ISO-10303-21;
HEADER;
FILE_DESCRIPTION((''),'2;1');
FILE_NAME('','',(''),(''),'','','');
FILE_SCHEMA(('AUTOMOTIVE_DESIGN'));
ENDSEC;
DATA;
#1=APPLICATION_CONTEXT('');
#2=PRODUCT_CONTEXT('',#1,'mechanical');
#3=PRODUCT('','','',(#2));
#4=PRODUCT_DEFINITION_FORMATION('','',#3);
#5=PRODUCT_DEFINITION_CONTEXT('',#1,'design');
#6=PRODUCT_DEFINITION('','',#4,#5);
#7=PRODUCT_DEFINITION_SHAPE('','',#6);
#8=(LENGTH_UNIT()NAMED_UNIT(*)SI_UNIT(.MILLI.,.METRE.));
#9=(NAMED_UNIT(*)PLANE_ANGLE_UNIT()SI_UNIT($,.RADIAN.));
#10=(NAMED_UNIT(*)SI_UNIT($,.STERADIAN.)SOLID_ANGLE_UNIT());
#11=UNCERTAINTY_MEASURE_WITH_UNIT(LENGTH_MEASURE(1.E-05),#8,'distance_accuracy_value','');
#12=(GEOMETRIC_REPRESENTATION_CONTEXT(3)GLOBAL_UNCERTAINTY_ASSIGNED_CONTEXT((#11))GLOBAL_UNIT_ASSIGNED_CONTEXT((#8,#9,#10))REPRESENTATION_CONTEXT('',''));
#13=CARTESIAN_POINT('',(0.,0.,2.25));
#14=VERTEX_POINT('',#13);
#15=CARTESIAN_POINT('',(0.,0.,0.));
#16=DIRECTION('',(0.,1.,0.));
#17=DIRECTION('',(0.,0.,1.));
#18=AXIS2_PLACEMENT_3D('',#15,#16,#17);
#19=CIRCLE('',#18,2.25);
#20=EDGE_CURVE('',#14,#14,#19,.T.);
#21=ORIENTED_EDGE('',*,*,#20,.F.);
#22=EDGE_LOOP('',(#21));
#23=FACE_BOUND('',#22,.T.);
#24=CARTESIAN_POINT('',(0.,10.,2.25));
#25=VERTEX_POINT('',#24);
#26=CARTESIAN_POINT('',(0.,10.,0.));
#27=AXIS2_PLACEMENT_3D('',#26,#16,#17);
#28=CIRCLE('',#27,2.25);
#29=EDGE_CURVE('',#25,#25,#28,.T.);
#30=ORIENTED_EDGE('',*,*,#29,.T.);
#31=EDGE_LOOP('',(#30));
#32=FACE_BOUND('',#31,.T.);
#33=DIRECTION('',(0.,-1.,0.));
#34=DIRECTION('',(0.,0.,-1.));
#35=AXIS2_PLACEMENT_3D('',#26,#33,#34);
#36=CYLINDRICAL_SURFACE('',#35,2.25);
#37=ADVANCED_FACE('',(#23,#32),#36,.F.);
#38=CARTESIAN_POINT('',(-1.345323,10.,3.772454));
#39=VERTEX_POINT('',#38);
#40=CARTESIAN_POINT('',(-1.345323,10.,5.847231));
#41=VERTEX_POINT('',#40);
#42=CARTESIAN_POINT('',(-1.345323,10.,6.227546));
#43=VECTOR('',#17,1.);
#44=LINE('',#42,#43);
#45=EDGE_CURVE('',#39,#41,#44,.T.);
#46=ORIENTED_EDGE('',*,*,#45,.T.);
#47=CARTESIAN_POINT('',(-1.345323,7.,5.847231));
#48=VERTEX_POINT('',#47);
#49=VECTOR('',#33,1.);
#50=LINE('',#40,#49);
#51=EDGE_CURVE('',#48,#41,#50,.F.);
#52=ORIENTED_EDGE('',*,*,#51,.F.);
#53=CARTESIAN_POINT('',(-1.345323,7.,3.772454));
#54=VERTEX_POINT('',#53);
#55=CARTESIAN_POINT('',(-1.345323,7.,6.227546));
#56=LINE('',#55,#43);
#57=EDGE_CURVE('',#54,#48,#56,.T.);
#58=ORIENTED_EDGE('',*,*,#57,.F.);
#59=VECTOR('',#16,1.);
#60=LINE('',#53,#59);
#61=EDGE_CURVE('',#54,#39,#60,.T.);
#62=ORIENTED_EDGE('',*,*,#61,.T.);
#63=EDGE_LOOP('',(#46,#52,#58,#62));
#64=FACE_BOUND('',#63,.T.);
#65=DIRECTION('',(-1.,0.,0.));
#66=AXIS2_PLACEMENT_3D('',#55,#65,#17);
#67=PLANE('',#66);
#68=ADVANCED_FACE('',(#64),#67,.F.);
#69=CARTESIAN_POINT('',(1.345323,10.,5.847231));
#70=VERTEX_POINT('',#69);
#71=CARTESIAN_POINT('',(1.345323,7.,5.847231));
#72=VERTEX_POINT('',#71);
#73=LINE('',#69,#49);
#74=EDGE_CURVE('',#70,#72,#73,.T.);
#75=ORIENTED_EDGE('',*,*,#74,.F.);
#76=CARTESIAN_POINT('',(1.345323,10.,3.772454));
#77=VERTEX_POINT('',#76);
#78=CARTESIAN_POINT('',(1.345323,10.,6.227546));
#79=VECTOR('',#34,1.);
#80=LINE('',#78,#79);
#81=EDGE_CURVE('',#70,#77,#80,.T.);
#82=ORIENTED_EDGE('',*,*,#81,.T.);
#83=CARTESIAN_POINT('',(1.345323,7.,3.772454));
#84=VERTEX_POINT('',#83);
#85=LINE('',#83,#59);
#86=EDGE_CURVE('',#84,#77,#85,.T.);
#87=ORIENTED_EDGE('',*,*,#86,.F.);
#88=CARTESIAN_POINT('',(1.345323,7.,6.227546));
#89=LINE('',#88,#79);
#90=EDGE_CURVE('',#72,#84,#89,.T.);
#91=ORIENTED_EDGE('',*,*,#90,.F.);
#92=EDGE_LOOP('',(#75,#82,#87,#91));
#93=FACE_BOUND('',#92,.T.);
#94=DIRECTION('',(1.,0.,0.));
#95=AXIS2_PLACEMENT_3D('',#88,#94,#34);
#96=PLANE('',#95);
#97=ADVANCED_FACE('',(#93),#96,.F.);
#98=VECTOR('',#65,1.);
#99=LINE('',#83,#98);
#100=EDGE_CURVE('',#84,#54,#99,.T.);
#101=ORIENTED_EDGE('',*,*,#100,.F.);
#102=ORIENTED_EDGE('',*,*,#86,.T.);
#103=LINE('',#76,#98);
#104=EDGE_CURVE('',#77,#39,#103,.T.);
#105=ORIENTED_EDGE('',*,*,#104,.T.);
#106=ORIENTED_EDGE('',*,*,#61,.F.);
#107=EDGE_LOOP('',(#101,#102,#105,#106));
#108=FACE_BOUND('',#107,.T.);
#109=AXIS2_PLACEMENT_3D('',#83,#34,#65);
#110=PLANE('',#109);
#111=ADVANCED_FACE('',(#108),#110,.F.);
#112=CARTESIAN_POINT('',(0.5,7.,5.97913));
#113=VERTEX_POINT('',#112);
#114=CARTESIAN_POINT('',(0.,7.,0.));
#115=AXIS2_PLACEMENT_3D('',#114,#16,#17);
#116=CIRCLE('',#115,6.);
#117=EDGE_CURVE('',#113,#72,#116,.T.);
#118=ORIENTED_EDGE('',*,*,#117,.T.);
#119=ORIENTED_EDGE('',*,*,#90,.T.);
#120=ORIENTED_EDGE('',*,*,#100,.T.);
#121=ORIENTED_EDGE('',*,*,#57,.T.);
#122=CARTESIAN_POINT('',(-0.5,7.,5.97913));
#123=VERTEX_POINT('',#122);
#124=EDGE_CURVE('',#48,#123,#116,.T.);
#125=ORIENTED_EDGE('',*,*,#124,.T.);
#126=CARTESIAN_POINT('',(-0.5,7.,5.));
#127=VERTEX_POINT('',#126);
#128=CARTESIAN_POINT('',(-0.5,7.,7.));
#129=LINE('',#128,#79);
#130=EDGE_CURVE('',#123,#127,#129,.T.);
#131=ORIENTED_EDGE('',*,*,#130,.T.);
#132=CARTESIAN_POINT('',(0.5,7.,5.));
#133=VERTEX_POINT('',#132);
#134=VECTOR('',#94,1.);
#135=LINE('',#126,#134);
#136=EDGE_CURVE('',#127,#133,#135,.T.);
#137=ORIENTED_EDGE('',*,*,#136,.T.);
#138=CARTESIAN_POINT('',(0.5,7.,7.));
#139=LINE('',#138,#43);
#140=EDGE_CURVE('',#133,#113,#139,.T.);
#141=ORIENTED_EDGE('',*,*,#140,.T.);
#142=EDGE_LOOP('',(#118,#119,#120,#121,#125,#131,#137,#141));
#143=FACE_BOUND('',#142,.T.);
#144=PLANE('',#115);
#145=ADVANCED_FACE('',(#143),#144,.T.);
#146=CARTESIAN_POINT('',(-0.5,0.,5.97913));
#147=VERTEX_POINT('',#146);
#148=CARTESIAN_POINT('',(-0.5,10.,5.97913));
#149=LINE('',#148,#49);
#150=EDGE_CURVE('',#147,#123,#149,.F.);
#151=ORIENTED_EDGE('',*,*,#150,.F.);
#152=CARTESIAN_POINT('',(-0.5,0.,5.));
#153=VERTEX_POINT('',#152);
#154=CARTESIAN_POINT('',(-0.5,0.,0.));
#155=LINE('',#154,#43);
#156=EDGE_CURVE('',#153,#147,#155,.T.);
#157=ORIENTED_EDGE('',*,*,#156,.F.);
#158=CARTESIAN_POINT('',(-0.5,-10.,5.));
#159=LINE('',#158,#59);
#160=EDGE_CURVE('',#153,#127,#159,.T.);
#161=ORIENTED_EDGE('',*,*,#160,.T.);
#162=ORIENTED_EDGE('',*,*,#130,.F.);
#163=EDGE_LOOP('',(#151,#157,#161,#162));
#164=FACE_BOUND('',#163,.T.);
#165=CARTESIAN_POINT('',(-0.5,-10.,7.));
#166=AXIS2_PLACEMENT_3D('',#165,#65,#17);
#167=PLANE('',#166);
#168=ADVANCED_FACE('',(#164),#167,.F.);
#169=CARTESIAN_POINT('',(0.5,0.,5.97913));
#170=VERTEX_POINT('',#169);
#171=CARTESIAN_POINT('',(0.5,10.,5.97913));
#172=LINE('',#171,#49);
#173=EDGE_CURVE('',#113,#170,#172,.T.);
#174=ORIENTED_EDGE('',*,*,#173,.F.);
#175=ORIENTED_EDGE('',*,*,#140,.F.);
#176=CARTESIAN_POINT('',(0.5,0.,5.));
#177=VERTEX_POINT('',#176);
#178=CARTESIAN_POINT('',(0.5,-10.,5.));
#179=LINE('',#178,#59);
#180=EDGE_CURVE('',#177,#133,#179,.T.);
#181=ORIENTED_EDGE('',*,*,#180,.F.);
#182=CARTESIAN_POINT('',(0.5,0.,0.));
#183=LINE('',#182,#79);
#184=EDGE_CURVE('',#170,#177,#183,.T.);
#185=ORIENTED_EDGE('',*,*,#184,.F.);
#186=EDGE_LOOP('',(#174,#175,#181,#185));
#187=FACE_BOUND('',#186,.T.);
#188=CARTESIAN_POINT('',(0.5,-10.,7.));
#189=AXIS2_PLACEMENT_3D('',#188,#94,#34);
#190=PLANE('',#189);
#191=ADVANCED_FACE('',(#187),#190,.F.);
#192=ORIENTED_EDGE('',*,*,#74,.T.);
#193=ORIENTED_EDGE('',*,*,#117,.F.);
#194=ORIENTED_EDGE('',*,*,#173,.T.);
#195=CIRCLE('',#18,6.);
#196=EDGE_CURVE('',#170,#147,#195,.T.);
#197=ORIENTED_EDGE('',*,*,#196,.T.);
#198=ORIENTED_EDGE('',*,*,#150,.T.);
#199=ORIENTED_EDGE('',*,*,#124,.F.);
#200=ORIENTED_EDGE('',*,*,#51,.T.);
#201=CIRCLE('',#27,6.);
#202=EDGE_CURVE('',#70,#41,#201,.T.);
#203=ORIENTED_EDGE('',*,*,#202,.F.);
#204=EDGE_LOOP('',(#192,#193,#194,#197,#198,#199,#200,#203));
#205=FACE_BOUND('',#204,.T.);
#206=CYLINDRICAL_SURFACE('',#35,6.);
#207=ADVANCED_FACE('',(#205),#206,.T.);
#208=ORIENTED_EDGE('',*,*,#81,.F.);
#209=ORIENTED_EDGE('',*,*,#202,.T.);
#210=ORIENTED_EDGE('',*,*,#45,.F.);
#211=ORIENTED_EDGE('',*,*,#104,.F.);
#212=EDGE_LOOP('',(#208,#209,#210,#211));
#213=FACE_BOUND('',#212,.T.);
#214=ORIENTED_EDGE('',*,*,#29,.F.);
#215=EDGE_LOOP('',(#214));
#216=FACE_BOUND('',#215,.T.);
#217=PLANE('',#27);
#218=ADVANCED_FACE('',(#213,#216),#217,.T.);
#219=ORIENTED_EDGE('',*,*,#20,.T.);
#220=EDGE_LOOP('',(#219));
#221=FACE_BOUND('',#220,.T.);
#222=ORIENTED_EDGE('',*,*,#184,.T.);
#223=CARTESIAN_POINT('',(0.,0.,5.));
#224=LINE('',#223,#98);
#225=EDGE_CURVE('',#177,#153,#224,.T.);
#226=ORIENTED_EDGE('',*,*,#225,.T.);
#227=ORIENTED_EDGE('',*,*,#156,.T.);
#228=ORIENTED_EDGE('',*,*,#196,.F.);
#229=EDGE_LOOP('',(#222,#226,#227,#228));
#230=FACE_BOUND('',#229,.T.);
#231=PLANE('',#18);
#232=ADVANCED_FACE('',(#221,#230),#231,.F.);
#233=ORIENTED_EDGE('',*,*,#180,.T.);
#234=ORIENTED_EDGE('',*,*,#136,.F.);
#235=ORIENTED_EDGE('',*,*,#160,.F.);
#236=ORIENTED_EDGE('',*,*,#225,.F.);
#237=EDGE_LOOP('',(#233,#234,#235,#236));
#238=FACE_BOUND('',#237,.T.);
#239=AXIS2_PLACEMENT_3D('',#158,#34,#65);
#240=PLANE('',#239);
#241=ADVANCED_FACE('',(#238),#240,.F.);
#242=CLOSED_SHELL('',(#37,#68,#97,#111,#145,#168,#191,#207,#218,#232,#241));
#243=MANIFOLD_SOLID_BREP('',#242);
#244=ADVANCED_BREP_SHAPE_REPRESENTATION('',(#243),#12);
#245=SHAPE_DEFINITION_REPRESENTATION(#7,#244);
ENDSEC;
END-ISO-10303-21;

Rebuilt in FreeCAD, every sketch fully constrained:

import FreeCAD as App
import Part
import Sketcher

V = App.Vector
Q = App.Units.Quantity

doc = App.newDocument("Part")
body = doc.addObject("PartDesign::Body", "Body")

# Sketch on XZ plane
sketch1 = doc.addObject("Sketcher::SketchObject", "Sketch")
body.addObject(sketch1)
sketch1.AttachmentSupport = (doc.XZ_Plane, [""])
sketch1.MapMode = "FlatFace"
sketch1.addGeometry([
    Part.Circle(V(0, 0, 0), V(0, 0, 1), 6),
    Part.Circle(V(0, 0, 0), V(0, 0, 1), 2.2),
], False)
sketch1.addConstraint([
    Sketcher.Constraint("Coincident", 0, 3, -1, 1),
    Sketcher.Constraint("Coincident", 1, 3, -1, 1),
    Sketcher.Constraint("Diameter", 0, Q("12 mm")),
    Sketcher.Constraint("Diameter", 1, Q("4.5 mm")),
])
pad1 = doc.addObject("PartDesign::Pad", "Pad")
body.addObject(pad1)
pad1.Profile = sketch1
pad1.Length = 10
pad1.Reversed = True

# Sketch on XZ plane
sketch2 = doc.addObject("Sketcher::SketchObject", "Sketch001")
body.addObject(sketch2)
sketch2.AttachmentSupport = (doc.XZ_Plane, [""])
sketch2.MapMode = "FlatFace"
sketch2.AttachmentOffset = App.Placement(V(0, 0, -10), App.Rotation())
sketch2.addGeometry([
    Part.LineSegment(V(-0.5, 5, 0), V(-0.5, 7, 0)),
    Part.LineSegment(V(-0.5, 7, 0), V(0.5, 7, 0)),
    Part.LineSegment(V(0.5, 7, 0), V(0.5, 5, 0)),
    Part.LineSegment(V(0.5, 5, 0), V(-0.5, 5, 0)),
], False)
sketch2.addConstraint([
    Sketcher.Constraint("Coincident", 0, 2, 1, 1),
    Sketcher.Constraint("Coincident", 1, 2, 2, 1),
    Sketcher.Constraint("Coincident", 2, 2, 3, 1),
    Sketcher.Constraint("Coincident", 3, 2, 0, 1),
    Sketcher.Constraint("Vertical", 0),
    Sketcher.Constraint("Horizontal", 1),
    Sketcher.Constraint("Vertical", 2),
    Sketcher.Constraint("Horizontal", 3),
    Sketcher.Constraint("DistanceX", 1, 1, 1, 2, Q("1 mm")),
    Sketcher.Constraint("DistanceY", 0, 1, 0, 2, Q("2 mm")),
    Sketcher.Constraint("DistanceY", -1, 1, 0, 2, Q("7 mm")),
    Sketcher.Constraint("DistanceX", 0, 2, -1, 1, Q("0.5 mm")),
])
pocket1 = doc.addObject("PartDesign::Pocket", "Pocket")
body.addObject(pocket1)
pocket1.Profile = sketch2
pocket1.Length = 20
pocket1.Reversed = True

# Sketch on XZ plane
sketch3 = doc.addObject("Sketcher::SketchObject", "Sketch002")
body.addObject(sketch3)
sketch3.AttachmentSupport = (doc.XZ_Plane, [""])
sketch3.MapMode = "FlatFace"
sketch3.AttachmentOffset = App.Placement(V(0, 0, -10), App.Rotation())
sketch3.addGeometry([
    Part.LineSegment(V(-1.3, 3.8, 0), V(-1.3, 6.2, 0)),
    Part.LineSegment(V(-1.3, 6.2, 0), V(1.3, 6.2, 0)),
    Part.LineSegment(V(1.3, 6.2, 0), V(1.3, 3.8, 0)),
    Part.LineSegment(V(1.3, 3.8, 0), V(-1.3, 3.8, 0)),
], False)
sketch3.addConstraint([
    Sketcher.Constraint("Coincident", 0, 2, 1, 1),
    Sketcher.Constraint("Coincident", 1, 2, 2, 1),
    Sketcher.Constraint("Coincident", 2, 2, 3, 1),
    Sketcher.Constraint("Coincident", 3, 2, 0, 1),
    Sketcher.Constraint("Vertical", 0),
    Sketcher.Constraint("Horizontal", 1),
    Sketcher.Constraint("Vertical", 2),
    Sketcher.Constraint("Horizontal", 3),
    Sketcher.Constraint("DistanceY", 0, 1, 0, 2, Q("2.455092 mm")),
    Sketcher.Constraint("DistanceX", 1, 1, 1, 2, Q("2.690646 mm")),
    Sketcher.Constraint("DistanceX", 0, 2, -1, 1, Q("1.345323 mm")),
    Sketcher.Constraint("DistanceY", -1, 1, 0, 2, Q("6.227546 mm")),
])
pocket2 = doc.addObject("PartDesign::Pocket", "Pocket001")
body.addObject(pocket2)
pocket2.Profile = sketch3
pocket2.Length = 3
pocket2.Reversed = True

doc.recompute()
